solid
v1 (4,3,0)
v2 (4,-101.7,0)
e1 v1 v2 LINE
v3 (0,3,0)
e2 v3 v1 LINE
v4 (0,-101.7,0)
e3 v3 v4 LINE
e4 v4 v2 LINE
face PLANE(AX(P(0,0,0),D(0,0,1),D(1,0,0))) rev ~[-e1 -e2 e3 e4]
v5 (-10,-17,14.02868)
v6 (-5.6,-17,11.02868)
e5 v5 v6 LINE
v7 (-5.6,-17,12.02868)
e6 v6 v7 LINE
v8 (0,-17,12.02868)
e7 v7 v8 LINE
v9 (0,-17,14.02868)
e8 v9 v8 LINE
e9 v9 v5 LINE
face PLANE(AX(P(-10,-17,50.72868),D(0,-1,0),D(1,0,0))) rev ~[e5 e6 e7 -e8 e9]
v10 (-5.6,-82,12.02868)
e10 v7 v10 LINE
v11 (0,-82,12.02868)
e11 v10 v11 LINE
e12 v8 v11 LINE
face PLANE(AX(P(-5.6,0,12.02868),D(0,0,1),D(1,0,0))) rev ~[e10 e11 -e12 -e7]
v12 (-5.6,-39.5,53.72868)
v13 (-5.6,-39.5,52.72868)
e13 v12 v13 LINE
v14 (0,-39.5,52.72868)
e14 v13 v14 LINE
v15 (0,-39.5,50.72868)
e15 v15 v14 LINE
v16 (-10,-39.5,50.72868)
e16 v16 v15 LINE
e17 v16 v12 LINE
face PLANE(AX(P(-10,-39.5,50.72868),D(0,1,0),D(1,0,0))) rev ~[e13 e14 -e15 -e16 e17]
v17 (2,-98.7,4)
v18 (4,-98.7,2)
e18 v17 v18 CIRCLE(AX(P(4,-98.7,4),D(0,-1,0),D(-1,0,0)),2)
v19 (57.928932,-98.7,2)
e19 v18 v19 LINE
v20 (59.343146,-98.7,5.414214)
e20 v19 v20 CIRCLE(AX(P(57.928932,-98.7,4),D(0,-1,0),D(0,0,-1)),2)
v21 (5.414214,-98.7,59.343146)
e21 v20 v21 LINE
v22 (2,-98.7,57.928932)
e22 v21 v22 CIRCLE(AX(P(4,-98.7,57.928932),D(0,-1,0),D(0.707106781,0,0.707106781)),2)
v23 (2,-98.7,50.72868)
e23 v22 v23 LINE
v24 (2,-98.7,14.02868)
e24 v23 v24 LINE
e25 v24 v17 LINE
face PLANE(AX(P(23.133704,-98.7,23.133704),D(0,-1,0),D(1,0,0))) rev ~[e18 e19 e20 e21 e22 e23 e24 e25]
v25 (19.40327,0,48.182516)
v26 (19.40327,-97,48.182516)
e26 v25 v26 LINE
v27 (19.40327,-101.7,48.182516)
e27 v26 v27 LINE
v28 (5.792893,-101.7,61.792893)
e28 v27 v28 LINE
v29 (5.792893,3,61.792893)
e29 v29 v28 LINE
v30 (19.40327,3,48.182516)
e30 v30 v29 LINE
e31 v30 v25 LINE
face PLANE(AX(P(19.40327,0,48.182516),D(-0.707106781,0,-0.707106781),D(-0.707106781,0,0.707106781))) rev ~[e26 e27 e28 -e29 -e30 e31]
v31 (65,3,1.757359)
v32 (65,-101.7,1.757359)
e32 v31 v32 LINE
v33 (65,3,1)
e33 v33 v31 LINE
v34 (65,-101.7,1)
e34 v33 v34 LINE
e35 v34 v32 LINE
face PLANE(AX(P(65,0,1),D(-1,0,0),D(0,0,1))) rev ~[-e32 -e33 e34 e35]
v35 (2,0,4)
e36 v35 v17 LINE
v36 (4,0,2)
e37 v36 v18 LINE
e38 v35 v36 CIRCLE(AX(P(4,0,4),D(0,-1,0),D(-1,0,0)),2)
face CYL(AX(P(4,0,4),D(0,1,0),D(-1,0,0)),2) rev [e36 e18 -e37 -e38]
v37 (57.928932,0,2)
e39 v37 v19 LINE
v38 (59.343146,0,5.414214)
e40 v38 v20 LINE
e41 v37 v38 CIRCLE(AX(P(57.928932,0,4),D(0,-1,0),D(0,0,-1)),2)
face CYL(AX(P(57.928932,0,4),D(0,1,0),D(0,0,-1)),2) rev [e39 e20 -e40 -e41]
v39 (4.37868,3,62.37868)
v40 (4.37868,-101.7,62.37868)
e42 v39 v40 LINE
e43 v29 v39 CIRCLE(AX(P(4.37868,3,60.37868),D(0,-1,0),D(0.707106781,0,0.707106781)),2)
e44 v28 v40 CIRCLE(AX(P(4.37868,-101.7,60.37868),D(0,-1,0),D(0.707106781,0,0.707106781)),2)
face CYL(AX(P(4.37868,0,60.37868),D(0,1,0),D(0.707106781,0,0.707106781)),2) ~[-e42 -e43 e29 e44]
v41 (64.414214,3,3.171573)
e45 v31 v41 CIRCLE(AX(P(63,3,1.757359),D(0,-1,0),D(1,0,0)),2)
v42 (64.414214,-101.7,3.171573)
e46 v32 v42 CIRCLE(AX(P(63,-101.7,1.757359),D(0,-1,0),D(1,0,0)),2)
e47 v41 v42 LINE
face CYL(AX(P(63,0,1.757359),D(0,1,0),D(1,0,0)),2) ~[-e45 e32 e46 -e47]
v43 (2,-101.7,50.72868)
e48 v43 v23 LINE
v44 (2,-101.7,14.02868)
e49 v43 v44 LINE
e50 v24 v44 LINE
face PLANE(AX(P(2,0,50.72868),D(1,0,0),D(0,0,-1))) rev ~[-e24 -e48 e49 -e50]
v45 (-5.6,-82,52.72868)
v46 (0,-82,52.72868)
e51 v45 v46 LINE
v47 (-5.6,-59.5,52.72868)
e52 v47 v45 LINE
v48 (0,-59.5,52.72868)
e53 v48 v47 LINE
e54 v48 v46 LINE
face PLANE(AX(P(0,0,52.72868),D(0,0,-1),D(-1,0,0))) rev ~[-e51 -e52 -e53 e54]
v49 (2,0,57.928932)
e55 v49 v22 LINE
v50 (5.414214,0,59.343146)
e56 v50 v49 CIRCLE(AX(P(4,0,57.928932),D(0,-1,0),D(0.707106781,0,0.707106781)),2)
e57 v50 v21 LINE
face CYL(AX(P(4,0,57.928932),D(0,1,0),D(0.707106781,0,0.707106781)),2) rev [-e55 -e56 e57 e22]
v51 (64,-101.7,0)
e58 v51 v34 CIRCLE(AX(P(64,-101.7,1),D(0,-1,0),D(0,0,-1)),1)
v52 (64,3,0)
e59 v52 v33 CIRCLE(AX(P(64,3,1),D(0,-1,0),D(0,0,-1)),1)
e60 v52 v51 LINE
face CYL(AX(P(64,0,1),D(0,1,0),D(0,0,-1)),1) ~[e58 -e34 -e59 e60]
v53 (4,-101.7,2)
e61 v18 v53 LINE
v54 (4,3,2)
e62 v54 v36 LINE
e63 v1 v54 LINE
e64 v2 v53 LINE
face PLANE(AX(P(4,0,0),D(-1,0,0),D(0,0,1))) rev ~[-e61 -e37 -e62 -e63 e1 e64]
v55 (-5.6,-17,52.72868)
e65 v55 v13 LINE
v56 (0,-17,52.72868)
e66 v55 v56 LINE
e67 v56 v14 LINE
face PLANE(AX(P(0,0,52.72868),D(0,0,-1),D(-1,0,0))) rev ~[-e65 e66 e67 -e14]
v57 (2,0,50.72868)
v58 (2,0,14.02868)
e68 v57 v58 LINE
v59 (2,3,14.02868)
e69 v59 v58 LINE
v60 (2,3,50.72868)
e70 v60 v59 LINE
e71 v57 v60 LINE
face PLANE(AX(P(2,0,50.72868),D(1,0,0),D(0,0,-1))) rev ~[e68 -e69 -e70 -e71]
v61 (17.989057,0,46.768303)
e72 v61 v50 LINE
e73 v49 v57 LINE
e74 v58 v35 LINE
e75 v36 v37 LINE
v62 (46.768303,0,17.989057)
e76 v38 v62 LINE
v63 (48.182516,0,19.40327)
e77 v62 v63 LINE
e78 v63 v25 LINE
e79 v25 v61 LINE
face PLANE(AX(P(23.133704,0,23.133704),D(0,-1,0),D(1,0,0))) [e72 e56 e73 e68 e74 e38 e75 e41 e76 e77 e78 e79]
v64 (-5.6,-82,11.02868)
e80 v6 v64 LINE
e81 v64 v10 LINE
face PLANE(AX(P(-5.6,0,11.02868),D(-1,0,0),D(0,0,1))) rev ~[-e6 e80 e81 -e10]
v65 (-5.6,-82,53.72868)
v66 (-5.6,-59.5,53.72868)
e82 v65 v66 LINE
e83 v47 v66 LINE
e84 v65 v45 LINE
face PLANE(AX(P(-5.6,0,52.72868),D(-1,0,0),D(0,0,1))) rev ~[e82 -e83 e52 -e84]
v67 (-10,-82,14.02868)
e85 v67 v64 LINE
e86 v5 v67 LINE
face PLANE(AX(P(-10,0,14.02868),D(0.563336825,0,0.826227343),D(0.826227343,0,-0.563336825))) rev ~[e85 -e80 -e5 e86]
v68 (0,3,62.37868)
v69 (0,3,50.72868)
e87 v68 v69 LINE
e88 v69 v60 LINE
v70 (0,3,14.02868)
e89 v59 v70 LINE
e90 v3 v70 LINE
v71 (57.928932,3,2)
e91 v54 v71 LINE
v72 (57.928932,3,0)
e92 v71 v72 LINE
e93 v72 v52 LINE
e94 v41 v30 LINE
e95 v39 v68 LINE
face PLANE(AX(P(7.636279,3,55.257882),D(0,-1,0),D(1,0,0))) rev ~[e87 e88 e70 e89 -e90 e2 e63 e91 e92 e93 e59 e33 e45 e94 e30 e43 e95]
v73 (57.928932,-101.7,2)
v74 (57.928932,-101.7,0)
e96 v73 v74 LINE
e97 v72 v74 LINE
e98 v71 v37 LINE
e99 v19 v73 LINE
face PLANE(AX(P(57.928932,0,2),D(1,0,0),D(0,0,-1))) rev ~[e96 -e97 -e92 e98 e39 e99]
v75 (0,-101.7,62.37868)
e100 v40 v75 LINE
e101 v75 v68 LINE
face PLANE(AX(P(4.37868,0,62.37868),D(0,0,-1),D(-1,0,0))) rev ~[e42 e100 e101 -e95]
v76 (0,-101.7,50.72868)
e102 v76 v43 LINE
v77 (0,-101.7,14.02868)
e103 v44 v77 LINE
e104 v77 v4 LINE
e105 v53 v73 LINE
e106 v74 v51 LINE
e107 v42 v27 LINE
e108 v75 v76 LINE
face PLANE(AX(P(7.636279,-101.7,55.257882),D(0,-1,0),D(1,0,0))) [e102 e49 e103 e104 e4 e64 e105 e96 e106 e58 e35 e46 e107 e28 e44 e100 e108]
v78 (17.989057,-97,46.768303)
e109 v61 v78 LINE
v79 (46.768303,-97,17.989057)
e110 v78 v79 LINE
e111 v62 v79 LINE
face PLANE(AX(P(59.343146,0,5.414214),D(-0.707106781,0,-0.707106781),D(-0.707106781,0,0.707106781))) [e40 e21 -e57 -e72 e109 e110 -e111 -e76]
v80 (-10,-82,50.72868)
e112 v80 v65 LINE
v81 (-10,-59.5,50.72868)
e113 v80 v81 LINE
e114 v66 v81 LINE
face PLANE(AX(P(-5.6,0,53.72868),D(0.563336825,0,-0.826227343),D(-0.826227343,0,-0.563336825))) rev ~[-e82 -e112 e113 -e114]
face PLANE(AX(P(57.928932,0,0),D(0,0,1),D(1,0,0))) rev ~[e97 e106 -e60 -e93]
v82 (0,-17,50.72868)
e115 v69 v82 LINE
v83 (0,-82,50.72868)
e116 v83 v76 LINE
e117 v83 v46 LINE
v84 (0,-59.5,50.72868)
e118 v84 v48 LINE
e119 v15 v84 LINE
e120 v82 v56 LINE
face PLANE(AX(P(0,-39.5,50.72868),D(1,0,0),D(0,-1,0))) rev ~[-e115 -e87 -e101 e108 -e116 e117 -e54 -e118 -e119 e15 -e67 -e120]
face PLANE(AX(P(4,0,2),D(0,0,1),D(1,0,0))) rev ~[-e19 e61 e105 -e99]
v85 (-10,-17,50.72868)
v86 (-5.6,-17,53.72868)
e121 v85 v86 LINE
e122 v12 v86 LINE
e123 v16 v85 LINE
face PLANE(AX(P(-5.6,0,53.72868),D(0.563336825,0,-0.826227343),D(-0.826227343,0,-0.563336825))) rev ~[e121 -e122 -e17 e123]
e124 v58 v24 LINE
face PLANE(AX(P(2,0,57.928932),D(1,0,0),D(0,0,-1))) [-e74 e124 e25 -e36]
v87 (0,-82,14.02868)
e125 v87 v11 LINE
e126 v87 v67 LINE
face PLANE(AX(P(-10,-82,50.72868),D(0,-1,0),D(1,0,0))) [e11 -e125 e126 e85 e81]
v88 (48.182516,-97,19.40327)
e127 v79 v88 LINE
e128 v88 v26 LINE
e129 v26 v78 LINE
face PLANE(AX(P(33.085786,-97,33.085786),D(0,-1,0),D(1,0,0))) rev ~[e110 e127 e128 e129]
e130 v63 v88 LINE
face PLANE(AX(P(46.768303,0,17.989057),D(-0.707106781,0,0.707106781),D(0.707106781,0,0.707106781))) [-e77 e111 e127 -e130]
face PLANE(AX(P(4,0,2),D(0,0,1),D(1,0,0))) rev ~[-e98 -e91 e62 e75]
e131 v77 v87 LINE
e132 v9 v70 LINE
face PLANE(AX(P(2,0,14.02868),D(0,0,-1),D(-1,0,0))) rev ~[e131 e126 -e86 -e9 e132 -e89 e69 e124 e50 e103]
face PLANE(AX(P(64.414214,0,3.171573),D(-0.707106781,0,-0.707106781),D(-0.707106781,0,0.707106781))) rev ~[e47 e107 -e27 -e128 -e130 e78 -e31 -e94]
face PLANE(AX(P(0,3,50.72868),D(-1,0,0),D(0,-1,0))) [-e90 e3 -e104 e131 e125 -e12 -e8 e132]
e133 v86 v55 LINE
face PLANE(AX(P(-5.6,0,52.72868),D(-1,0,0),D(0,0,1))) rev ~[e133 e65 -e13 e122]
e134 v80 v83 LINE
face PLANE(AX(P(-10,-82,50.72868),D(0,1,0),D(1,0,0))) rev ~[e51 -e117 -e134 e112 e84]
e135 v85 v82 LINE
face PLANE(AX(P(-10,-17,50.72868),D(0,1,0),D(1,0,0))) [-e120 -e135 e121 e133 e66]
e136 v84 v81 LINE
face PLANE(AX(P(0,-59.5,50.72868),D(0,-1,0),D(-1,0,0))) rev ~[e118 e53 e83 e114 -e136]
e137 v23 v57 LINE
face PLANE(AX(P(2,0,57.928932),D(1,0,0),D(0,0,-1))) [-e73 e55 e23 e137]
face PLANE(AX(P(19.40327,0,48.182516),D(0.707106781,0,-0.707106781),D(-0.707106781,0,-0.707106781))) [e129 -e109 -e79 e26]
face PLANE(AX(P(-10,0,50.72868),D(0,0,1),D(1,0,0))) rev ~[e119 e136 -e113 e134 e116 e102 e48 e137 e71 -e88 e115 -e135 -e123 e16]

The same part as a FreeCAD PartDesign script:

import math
import FreeCAD as App
import Part
import Sketcher
from FreeCAD import Vector
Q = App.Units.Quantity


def add_polygon(sketch, points):
    """Adds a closed chain of lines whose ends are joined by coincident constraints."""
    first, n = sketch.GeometryCount, len(points)
    for a, b in zip(points, points[1:] + points[:1]):
        sketch.addGeometry(Part.LineSegment(App.Vector(*a, 0), App.Vector(*b, 0)), False)
    for i in range(n):
        sketch.addConstraint(Sketcher.Constraint("Coincident", first + i, 2, first + (i + 1) % n, 1))

doc = App.newDocument("Part")
params = doc.addObject("Spreadsheet::Sheet", "Params")
for row, (alias, value) in enumerate([
    ("sketch1_radius", "1 mm"),
    ("sketch1_radius2", "2 mm"),
    ("sketch1_width", "12 mm"),
    ("sketch1_width2", "4 mm"),
    ("sketch1_height", "1 mm"),
    ("pad1_length", "3 mm"),
    ("pad1_length2", "101.7 mm"),
    ("sketch2_radius", "2 mm"),
    ("pocket1_length", "98.7 mm"),
    ("sketch3_length", "2 mm"),
    ("sketch3_length2", "40.7 mm"),
    ("pocket2_length", "97 mm"),
    ("sketch4_width", "10 mm"),
    ("sketch4_height", "20 mm"),
    ("pocket3_length", "25 mm"),
    ("sketch5_width", "10 mm"),
    ("sketch5_height", "20 mm"),
    ("sketch5_height2", "19.7 mm"),
    ("pocket4_length", "50 mm"),
], start=1):
    params.set(f"A{row}", alias)
    params.set(f"B{row}", "=" + value)
    params.setAlias(f"B{row}", alias)

body = doc.addObject("PartDesign::Body", "Body")

sketch1 = body.newObject("Sketcher::SketchObject", "Sketch")
sketch1.AttachmentSupport = (doc.getObject("XZ_Plane"), [""])
sketch1.MapMode = "FlatFace"
sketch1.addGeometry([
    Part.LineSegment(Vector(2, 50.72868, 0), Vector(2, 14.02868, 0)),
    Part.LineSegment(Vector(2, 14.02868, 0), Vector(-10, 14.02868, 0)),
    Part.LineSegment(Vector(-10, 14.02868, 0), Vector(-5.6, 11.02868, 0)),
    Part.LineSegment(Vector(-5.6, 11.02868, 0), Vector(-5.6, 12.02868, 0)),
    Part.LineSegment(Vector(-5.6, 12.02868, 0), Vector(0, 12.02868, 0)),
    Part.LineSegment(Vector(0, 12.02868, 0), Vector(0, 0, 0)),
    Part.LineSegment(Vector(0, 0, 0), Vector(4, 0, 0)),
    Part.LineSegment(Vector(4, 0, 0), Vector(4, 2, 0)),
    Part.LineSegment(Vector(4, 2, 0), Vector(57.928932, 2, 0)),
    Part.LineSegment(Vector(57.928932, 2, 0), Vector(57.928932, 0, 0)),
    Part.LineSegment(Vector(57.928932, 0, 0), Vector(64, 0, 0)),
    Part.ArcOfCircle(Part.Circle(Vector(64, 1, 0), Vector(0, 0, 1), 1), math.radians(-90), math.radians(0)),
    Part.LineSegment(Vector(65, 1, 0), Vector(65, 1.757359, 0)),
    Part.ArcOfCircle(Part.Circle(Vector(63, 1.757359, 0), Vector(0, 0, 1), 2), math.radians(0), math.radians(45)),
    Part.LineSegment(Vector(64.414214, 3.171573, 0), Vector(19.40327, 48.182516, 0)),
    Part.LineSegment(Vector(19.40327, 48.182516, 0), Vector(5.792893, 61.792893, 0)),
    Part.ArcOfCircle(Part.Circle(Vector(4.37868, 60.37868, 0), Vector(0, 0, 1), 2), math.radians(45), math.radians(90)),
    Part.LineSegment(Vector(4.37868, 62.37868, 0), Vector(0, 62.37868, 0)),
    Part.LineSegment(Vector(0, 62.37868, 0), Vector(0, 52.72868, 0)),
    Part.LineSegment(Vector(0, 52.72868, 0), Vector(-5.6, 52.72868, 0)),
    Part.LineSegment(Vector(-5.6, 52.72868, 0), Vector(-5.6, 53.72868, 0)),
    Part.LineSegment(Vector(-5.6, 53.72868, 0), Vector(-10, 50.72868, 0)),
    Part.LineSegment(Vector(-10, 50.72868, 0), Vector(2, 50.72868, 0)),
], False)
sketch1.addConstraint([
    Sketcher.Constraint("Coincident", 0, 2, 1, 1),
    Sketcher.Constraint("Coincident", 1, 2, 2, 1),
    Sketcher.Constraint("Coincident", 2, 2, 3, 1),
    Sketcher.Constraint("Coincident", 3, 2, 4, 1),
    Sketcher.Constraint("Coincident", 4, 2, 5, 1),
    Sketcher.Constraint("Coincident", 5, 2, 6, 1),
    Sketcher.Constraint("Coincident", 6, 2, 7, 1),
    Sketcher.Constraint("Coincident", 7, 2, 8, 1),
    Sketcher.Constraint("Coincident", 8, 2, 9, 1),
    Sketcher.Constraint("Coincident", 9, 2, 10, 1),
    Sketcher.Constraint("Tangent", 10, 2, 11, 1),
    Sketcher.Constraint("Tangent", 11, 2, 12, 1),
    Sketcher.Constraint("Tangent", 12, 2, 13, 1),
    Sketcher.Constraint("Tangent", 13, 2, 14, 1),
    Sketcher.Constraint("Coincident", 14, 2, 15, 1),
    Sketcher.Constraint("Tangent", 15, 2, 16, 1),
    Sketcher.Constraint("Tangent", 16, 2, 17, 1),
    Sketcher.Constraint("Coincident", 17, 2, 18, 1),
    Sketcher.Constraint("Coincident", 18, 2, 19, 1),
    Sketcher.Constraint("Coincident", 19, 2, 20, 1),
    Sketcher.Constraint("Coincident", 20, 2, 21, 1),
    Sketcher.Constraint("Coincident", 21, 2, 22, 1),
    Sketcher.Constraint("Coincident", 22, 2, 0, 1),
    Sketcher.Constraint("Vertical", 0),
    Sketcher.Constraint("Horizontal", 1),
    Sketcher.Constraint("Vertical", 3),
    Sketcher.Constraint("Horizontal", 4),
    Sketcher.Constraint("Vertical", 5),
    Sketcher.Constraint("Horizontal", 6),
    Sketcher.Constraint("Vertical", 7),
    Sketcher.Constraint("Horizontal", 8),
    Sketcher.Constraint("Vertical", 9),
    Sketcher.Constraint("Horizontal", 10),
    Sketcher.Constraint("Vertical", 12),
    Sketcher.Constraint("Horizontal", 17),
    Sketcher.Constraint("Vertical", 18),
    Sketcher.Constraint("Horizontal", 19),
    Sketcher.Constraint("Vertical", 20),
    Sketcher.Constraint("Horizontal", 22),
    Sketcher.Constraint("Coincident", 5, 2, -1, 1),
    Sketcher.Constraint("Equal", 13, 16),
    Sketcher.Constraint("PointOnObject", 9, 2, -1),
    Sketcher.Constraint("PointOnObject", 17, 2, -2),
    Sketcher.Constraint("Parallel", 14, 15),
    Sketcher.Constraint("Vertical", 3, 2, 19, 2),
    Sketcher.Constraint("Vertical", 1, 2, 21, 2),
    Sketcher.Constraint("Equal", 3, 20),
    Sketcher.Constraint("Equal", 2, 21),
    Sketcher.Constraint("Radius", 11, 1.0),
    Sketcher.Constraint("Radius", 13, 2.0),
    Sketcher.Constraint("DistanceX", 1, 2, 1, 1, 12.0),
    Sketcher.Constraint("DistanceX", 6, 1, 6, 2, 4.0),
    Sketcher.Constraint("DistanceY", 3, 1, 3, 2, 1.0),
    Sketcher.Constraint("DistanceY", 7, 1, 7, 2, 2.0),
    Sketcher.Constraint("Angle", 14, Q("135 deg")),
    Sketcher.Constraint("DistanceX", 4, 1, 4, 2, 5.6),
    Sketcher.Constraint("DistanceY", 0, 2, 0, 1, 36.7),
    Sketcher.Constraint("DistanceX", -1, 1, 11, 3, 64.0),
    Sketcher.Constraint("DistanceX", -1, 1, 0, 2, 2.0),
    Sketcher.Constraint("DistanceY", 2, 2, 1, 2, 3.0),
    Sketcher.Constraint("DistanceY", 18, 2, 18, 1, 9.65),
    Sketcher.Constraint("DistanceX", 17, 2, 17, 1, 4.37868),
    Sketcher.Constraint("DistanceY", 5, 2, 5, 1, 12.02868),
    Sketcher.Constraint("Distance", 15, 19.24798),
    Sketcher.Constraint("DistanceX", 8, 1, 8, 2, 53.928932),
])
sketch1.setExpression("Constraints[48]", "Params.sketch1_radius")
sketch1.setExpression("Constraints[49]", "Params.sketch1_radius2")
sketch1.setExpression("Constraints[50]", "Params.sketch1_width")
sketch1.setExpression("Constraints[51]", "Params.sketch1_width2")
sketch1.setExpression("Constraints[52]", "Params.sketch1_height")
pad1 = body.newObject("PartDesign::Pad", "Pad")
pad1.Profile = sketch1
pad1.Type = "TwoLengths"
pad1.setExpression("Length", "Params.pad1_length")
pad1.setExpression("Length2", "Params.pad1_length2")
pad1.Reversed = True

sketch2 = body.newObject("Sketcher::SketchObject", "Sketch001")
sketch2.AttachmentSupport = (doc.getObject("XZ_Plane"), [""])
sketch2.MapMode = "FlatFace"
sketch2.addGeometry([
    Part.ArcOfCircle(Part.Circle(Vector(4, 4, 0), Vector(0, 0, 1), 2), math.radians(180), math.radians(270)),
    Part.LineSegment(Vector(4, 2, 0), Vector(57.928932, 2, 0)),
    Part.ArcOfCircle(Part.Circle(Vector(57.928932, 4, 0), Vector(0, 0, 1), 2), math.radians(-90), math.radians(45)),
    Part.LineSegment(Vector(59.343146, 5.414214, 0), Vector(5.414214, 59.343146, 0)),
    Part.ArcOfCircle(Part.Circle(Vector(4, 57.928932, 0), Vector(0, 0, 1), 2), math.radians(45), math.radians(180)),
    Part.LineSegment(Vector(2, 57.928932, 0), Vector(2, 4, 0)),
], False)
sketch2.addConstraint([
    Sketcher.Constraint("Tangent", 0, 2, 1, 1),
    Sketcher.Constraint("Tangent", 1, 2, 2, 1),
    Sketcher.Constraint("Tangent", 2, 2, 3, 1),
    Sketcher.Constraint("Tangent", 3, 2, 4, 1),
    Sketcher.Constraint("Tangent", 4, 2, 5, 1),
    Sketcher.Constraint("Tangent", 5, 2, 0, 1),
    Sketcher.Constraint("Horizontal", 1),
    Sketcher.Constraint("Vertical", 5),
    Sketcher.Constraint("Equal", 0, 2),
    Sketcher.Constraint("Equal", 2, 4),
    Sketcher.Constraint("Equal", 1, 5),
    Sketcher.Constraint("Radius", 0, 2.0),
    Sketcher.Constraint("DistanceX", -1, 1, 0, 3, 4.0),
    Sketcher.Constraint("DistanceY", -1, 1, 0, 3, 4.0),
    Sketcher.Constraint("DistanceX", 1, 1, 1, 2, 53.928932),
])
sketch2.setExpression("Constraints[11]", "Params.sketch2_radius")
pocket1 = body.newObject("PartDesign::Pocket", "Pocket")
pocket1.Profile = sketch2
pocket1.setExpression("Length", "Params.pocket1_length")
pocket1.Reversed = True

sketch3 = body.newObject("Sketcher::SketchObject", "Sketch002")
sketch3.AttachmentSupport = (doc.getObject("XZ_Plane"), [""])
sketch3.MapMode = "FlatFace"
add_polygon(sketch3, [(17.989057, 46.768303), (46.768303, 17.989057), (48.182516, 19.40327), (19.40327, 48.182516)])
sketch3.addConstraint([
    Sketcher.Constraint("Perpendicular", 0, 1),
    Sketcher.Constraint("Perpendicular", 1, 2),
    Sketcher.Constraint("Perpendicular", 2, 3),
    Sketcher.Constraint("Angle", 0, Q("-45 deg")),
    Sketcher.Constraint("Distance", 1, 2.0),
    Sketcher.Constraint("Distance", 0, 40.7),
    Sketcher.Constraint("DistanceY", -1, 1, 1, 2, 19.40327),
    Sketcher.Constraint("DistanceX", -1, 1, 2, 2, 19.40327),
])
sketch3.setExpression("Constraints[8]", "Params.sketch3_length")
sketch3.setExpression("Constraints[9]", "Params.sketch3_length2")
pocket2 = body.newObject("PartDesign::Pocket", "Pocket001")
pocket2.Profile = sketch3
pocket2.setExpression("Length", "Params.pocket2_length")
pocket2.Reversed = True

sketch4 = body.newObject("Sketcher::SketchObject", "Sketch003")
sketch4.AttachmentSupport = (doc.getObject("XY_Plane"), [""])
sketch4.MapMode = "FlatFace"
sketch4.AttachmentOffset = App.Placement(Vector(0, 0, 50.72868), App.Rotation())
add_polygon(sketch4, [(-10, -102), (-10, -82), (0, -82), (0, -102)])
add_polygon(sketch4, [(-10, -39.5), (0, -39.5), (0, -59.5), (-10, -59.5)])
add_polygon(sketch4, [(-10, -17), (-10, 3), (0, 3), (0, -17)])
sketch4.addConstraint([
    Sketcher.Constraint("Vertical", 0),
    Sketcher.Constraint("Horizontal", 1),
    Sketcher.Constraint("Vertical", 2),
    Sketcher.Constraint("Horizontal", 3),
    Sketcher.Constraint("Horizontal", 4),
    Sketcher.Constraint("Vertical", 5),
    Sketcher.Constraint("Horizontal", 6),
    Sketcher.Constraint("Vertical", 7),
    Sketcher.Constraint("Vertical", 8),
    Sketcher.Constraint("Horizontal", 9),
    Sketcher.Constraint("Vertical", 10),
    Sketcher.Constraint("Horizontal", 11),
    Sketcher.Constraint("PointOnObject", 1, 2, -2),
    Sketcher.Constraint("PointOnObject", 4, 2, -2),
    Sketcher.Constraint("PointOnObject", 9, 2, -2),
    Sketcher.Constraint("Vertical", 3, 2, 6, 2),
    Sketcher.Constraint("Vertical", 7, 2, 8, 2),
    Sketcher.Constraint("Equal", 2, 5),
    Sketcher.Constraint("Equal", 7, 8),
    Sketcher.Constraint("DistanceX", 1, 1, 1, 2, 10.0),
    Sketcher.Constraint("DistanceY", 0, 1, 0, 2, 20.0),
    Sketcher.Constraint("DistanceY", 0, 2, -1, 1, 82.0),
    Sketcher.Constraint("DistanceY", -1, 1, 8, 2, 3.0),
    Sketcher.Constraint("DistanceY", 4, 2, -1, 1, 39.5),
])
sketch4.setExpression("Constraints[31]", "Params.sketch4_width")
sketch4.setExpression("Constraints[32]", "Params.sketch4_height")
pocket3 = body.newObject("PartDesign::Pocket", "Pocket002")
pocket3.Profile = sketch4
pocket3.setExpression("Length", "Params.pocket3_length")
pocket3.Reversed = True

sketch5 = body.newObject("Sketcher::SketchObject", "Sketch004")
sketch5.AttachmentSupport = (doc.getObject("XY_Plane"), [""])
sketch5.MapMode = "FlatFace"
sketch5.AttachmentOffset = App.Placement(Vector(0, 0, 50.72868), App.Rotation())
add_polygon(sketch5, [(-10, -17), (-10, 3), (0, 3), (0, -17)])
add_polygon(sketch5, [(-10, -101.7), (-10, -82), (0, -82), (0, -101.7)])
sketch5.addConstraint([
    Sketcher.Constraint("Vertical", 0),
    Sketcher.Constraint("Horizontal", 1),
    Sketcher.Constraint("Vertical", 2),
    Sketcher.Constraint("Horizontal", 3),
    Sketcher.Constraint("Vertical", 4),
    Sketcher.Constraint("Horizontal", 5),
    Sketcher.Constraint("Vertical", 6),
    Sketcher.Constraint("Horizontal", 7),
    Sketcher.Constraint("PointOnObject", 1, 2, -2),
    Sketcher.Constraint("PointOnObject", 5, 2, -2),
    Sketcher.Constraint("Vertical", 3, 2, 4, 2),
    Sketcher.Constraint("DistanceX", 1, 1, 1, 2, 10.0),
    Sketcher.Constraint("DistanceY", 0, 1, 0, 2, 20.0),
    Sketcher.Constraint("DistanceY", 4, 1, 4, 2, 19.7),
    Sketcher.Constraint("DistanceY", -1, 1, 0, 2, 3.0),
    Sketcher.Constraint("DistanceY", 4, 2, -1, 1, 82.0),
])
sketch5.setExpression("Constraints[19]", "Params.sketch5_width")
sketch5.setExpression("Constraints[20]", "Params.sketch5_height")
sketch5.setExpression("Constraints[21]", "Params.sketch5_height2")
pocket4 = body.newObject("PartDesign::Pocket", "Pocket003")
pocket4.Profile = sketch5
pocket4.setExpression("Length", "Params.pocket4_length")

doc.recompute()
